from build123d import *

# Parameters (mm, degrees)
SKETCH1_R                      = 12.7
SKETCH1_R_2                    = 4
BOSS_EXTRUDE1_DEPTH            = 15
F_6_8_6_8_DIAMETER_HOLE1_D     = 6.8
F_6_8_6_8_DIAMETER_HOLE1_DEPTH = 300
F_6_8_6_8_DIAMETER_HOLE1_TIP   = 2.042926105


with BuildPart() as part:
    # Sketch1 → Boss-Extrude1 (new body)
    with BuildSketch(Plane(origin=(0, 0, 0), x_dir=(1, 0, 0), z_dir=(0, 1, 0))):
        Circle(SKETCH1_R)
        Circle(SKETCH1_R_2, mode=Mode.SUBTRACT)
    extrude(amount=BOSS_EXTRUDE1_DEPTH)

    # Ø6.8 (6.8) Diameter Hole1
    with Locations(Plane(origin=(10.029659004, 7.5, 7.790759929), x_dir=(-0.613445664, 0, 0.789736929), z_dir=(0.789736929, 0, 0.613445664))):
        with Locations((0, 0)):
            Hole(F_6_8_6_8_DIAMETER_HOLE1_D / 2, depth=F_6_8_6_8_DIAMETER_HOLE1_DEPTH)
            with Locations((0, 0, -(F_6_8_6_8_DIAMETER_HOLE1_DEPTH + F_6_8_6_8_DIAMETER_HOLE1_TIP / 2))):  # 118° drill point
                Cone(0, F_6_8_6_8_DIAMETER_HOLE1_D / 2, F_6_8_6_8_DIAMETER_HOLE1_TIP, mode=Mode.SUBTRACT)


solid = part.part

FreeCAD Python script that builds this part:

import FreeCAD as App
import Part
import Sketcher

doc = App.newDocument("Part")
body = doc.addObject("PartDesign::Body", "Body")

sketch1 = body.newObject("Sketcher::SketchObject", "Sketch")
sketch1.AttachmentSupport = (doc.getObject("XZ_Plane"), [""])
sketch1.MapMode = "FlatFace"
sketch1.addGeometry(Part.Circle(App.Vector(0, 0, 0), App.Vector(0, 0, 1), 12.7), False)
sketch1.addGeometry(Part.Circle(App.Vector(0, 0, 0), App.Vector(0, 0, 1), 4), False)
sketch1.addConstraint(Sketcher.Constraint("Coincident", 0, 3, -1, 1))
sketch1.addConstraint(Sketcher.Constraint("Coincident", 1, 3, -1, 1))
sketch1.addConstraint(Sketcher.Constraint("Diameter", 1, 8.0))
sketch1.addConstraint(Sketcher.Constraint("Diameter", 0, 25.4))
pad1 = body.newObject("PartDesign::Pad", "Pad")
pad1.Profile = sketch1
pad1.Length = 15
pad1.Reversed = True

sketch2 = body.newObject("Sketcher::SketchObject", "Sketch001")
sketch2.Placement = App.Placement(App.Vector(10.029659, 0, 7.79076), App.Rotation(App.Vector(-0.613445664, 0, 0.789736929), App.Vector(0, -1, 0), App.Vector(0.789736929, 0, 0.613445664), "ZXY"))
sketch2.addGeometry(Part.Circle(App.Vector(0, -7.5, 0), App.Vector(0, 0, 1), 3.4), False)
sketch2.addConstraint(Sketcher.Constraint("PointOnObject", 0, 3, -2))
sketch2.addConstraint(Sketcher.Constraint("Diameter", 0, 6.8))
sketch2.addConstraint(Sketcher.Constraint("DistanceY", 0, 3, -1, 1, 7.5))
doc.recompute()
hole = body.newObject("PartDesign::Hole", "Hole")
hole.Profile = sketch2
hole.ThreadType = "None"
hole.Diameter = 6.8
hole.DepthType = "Dimension"
hole.Depth = 300
hole.DrillPoint = "Angled"
hole.DrillPointAngle = 118

doc.recompute()
